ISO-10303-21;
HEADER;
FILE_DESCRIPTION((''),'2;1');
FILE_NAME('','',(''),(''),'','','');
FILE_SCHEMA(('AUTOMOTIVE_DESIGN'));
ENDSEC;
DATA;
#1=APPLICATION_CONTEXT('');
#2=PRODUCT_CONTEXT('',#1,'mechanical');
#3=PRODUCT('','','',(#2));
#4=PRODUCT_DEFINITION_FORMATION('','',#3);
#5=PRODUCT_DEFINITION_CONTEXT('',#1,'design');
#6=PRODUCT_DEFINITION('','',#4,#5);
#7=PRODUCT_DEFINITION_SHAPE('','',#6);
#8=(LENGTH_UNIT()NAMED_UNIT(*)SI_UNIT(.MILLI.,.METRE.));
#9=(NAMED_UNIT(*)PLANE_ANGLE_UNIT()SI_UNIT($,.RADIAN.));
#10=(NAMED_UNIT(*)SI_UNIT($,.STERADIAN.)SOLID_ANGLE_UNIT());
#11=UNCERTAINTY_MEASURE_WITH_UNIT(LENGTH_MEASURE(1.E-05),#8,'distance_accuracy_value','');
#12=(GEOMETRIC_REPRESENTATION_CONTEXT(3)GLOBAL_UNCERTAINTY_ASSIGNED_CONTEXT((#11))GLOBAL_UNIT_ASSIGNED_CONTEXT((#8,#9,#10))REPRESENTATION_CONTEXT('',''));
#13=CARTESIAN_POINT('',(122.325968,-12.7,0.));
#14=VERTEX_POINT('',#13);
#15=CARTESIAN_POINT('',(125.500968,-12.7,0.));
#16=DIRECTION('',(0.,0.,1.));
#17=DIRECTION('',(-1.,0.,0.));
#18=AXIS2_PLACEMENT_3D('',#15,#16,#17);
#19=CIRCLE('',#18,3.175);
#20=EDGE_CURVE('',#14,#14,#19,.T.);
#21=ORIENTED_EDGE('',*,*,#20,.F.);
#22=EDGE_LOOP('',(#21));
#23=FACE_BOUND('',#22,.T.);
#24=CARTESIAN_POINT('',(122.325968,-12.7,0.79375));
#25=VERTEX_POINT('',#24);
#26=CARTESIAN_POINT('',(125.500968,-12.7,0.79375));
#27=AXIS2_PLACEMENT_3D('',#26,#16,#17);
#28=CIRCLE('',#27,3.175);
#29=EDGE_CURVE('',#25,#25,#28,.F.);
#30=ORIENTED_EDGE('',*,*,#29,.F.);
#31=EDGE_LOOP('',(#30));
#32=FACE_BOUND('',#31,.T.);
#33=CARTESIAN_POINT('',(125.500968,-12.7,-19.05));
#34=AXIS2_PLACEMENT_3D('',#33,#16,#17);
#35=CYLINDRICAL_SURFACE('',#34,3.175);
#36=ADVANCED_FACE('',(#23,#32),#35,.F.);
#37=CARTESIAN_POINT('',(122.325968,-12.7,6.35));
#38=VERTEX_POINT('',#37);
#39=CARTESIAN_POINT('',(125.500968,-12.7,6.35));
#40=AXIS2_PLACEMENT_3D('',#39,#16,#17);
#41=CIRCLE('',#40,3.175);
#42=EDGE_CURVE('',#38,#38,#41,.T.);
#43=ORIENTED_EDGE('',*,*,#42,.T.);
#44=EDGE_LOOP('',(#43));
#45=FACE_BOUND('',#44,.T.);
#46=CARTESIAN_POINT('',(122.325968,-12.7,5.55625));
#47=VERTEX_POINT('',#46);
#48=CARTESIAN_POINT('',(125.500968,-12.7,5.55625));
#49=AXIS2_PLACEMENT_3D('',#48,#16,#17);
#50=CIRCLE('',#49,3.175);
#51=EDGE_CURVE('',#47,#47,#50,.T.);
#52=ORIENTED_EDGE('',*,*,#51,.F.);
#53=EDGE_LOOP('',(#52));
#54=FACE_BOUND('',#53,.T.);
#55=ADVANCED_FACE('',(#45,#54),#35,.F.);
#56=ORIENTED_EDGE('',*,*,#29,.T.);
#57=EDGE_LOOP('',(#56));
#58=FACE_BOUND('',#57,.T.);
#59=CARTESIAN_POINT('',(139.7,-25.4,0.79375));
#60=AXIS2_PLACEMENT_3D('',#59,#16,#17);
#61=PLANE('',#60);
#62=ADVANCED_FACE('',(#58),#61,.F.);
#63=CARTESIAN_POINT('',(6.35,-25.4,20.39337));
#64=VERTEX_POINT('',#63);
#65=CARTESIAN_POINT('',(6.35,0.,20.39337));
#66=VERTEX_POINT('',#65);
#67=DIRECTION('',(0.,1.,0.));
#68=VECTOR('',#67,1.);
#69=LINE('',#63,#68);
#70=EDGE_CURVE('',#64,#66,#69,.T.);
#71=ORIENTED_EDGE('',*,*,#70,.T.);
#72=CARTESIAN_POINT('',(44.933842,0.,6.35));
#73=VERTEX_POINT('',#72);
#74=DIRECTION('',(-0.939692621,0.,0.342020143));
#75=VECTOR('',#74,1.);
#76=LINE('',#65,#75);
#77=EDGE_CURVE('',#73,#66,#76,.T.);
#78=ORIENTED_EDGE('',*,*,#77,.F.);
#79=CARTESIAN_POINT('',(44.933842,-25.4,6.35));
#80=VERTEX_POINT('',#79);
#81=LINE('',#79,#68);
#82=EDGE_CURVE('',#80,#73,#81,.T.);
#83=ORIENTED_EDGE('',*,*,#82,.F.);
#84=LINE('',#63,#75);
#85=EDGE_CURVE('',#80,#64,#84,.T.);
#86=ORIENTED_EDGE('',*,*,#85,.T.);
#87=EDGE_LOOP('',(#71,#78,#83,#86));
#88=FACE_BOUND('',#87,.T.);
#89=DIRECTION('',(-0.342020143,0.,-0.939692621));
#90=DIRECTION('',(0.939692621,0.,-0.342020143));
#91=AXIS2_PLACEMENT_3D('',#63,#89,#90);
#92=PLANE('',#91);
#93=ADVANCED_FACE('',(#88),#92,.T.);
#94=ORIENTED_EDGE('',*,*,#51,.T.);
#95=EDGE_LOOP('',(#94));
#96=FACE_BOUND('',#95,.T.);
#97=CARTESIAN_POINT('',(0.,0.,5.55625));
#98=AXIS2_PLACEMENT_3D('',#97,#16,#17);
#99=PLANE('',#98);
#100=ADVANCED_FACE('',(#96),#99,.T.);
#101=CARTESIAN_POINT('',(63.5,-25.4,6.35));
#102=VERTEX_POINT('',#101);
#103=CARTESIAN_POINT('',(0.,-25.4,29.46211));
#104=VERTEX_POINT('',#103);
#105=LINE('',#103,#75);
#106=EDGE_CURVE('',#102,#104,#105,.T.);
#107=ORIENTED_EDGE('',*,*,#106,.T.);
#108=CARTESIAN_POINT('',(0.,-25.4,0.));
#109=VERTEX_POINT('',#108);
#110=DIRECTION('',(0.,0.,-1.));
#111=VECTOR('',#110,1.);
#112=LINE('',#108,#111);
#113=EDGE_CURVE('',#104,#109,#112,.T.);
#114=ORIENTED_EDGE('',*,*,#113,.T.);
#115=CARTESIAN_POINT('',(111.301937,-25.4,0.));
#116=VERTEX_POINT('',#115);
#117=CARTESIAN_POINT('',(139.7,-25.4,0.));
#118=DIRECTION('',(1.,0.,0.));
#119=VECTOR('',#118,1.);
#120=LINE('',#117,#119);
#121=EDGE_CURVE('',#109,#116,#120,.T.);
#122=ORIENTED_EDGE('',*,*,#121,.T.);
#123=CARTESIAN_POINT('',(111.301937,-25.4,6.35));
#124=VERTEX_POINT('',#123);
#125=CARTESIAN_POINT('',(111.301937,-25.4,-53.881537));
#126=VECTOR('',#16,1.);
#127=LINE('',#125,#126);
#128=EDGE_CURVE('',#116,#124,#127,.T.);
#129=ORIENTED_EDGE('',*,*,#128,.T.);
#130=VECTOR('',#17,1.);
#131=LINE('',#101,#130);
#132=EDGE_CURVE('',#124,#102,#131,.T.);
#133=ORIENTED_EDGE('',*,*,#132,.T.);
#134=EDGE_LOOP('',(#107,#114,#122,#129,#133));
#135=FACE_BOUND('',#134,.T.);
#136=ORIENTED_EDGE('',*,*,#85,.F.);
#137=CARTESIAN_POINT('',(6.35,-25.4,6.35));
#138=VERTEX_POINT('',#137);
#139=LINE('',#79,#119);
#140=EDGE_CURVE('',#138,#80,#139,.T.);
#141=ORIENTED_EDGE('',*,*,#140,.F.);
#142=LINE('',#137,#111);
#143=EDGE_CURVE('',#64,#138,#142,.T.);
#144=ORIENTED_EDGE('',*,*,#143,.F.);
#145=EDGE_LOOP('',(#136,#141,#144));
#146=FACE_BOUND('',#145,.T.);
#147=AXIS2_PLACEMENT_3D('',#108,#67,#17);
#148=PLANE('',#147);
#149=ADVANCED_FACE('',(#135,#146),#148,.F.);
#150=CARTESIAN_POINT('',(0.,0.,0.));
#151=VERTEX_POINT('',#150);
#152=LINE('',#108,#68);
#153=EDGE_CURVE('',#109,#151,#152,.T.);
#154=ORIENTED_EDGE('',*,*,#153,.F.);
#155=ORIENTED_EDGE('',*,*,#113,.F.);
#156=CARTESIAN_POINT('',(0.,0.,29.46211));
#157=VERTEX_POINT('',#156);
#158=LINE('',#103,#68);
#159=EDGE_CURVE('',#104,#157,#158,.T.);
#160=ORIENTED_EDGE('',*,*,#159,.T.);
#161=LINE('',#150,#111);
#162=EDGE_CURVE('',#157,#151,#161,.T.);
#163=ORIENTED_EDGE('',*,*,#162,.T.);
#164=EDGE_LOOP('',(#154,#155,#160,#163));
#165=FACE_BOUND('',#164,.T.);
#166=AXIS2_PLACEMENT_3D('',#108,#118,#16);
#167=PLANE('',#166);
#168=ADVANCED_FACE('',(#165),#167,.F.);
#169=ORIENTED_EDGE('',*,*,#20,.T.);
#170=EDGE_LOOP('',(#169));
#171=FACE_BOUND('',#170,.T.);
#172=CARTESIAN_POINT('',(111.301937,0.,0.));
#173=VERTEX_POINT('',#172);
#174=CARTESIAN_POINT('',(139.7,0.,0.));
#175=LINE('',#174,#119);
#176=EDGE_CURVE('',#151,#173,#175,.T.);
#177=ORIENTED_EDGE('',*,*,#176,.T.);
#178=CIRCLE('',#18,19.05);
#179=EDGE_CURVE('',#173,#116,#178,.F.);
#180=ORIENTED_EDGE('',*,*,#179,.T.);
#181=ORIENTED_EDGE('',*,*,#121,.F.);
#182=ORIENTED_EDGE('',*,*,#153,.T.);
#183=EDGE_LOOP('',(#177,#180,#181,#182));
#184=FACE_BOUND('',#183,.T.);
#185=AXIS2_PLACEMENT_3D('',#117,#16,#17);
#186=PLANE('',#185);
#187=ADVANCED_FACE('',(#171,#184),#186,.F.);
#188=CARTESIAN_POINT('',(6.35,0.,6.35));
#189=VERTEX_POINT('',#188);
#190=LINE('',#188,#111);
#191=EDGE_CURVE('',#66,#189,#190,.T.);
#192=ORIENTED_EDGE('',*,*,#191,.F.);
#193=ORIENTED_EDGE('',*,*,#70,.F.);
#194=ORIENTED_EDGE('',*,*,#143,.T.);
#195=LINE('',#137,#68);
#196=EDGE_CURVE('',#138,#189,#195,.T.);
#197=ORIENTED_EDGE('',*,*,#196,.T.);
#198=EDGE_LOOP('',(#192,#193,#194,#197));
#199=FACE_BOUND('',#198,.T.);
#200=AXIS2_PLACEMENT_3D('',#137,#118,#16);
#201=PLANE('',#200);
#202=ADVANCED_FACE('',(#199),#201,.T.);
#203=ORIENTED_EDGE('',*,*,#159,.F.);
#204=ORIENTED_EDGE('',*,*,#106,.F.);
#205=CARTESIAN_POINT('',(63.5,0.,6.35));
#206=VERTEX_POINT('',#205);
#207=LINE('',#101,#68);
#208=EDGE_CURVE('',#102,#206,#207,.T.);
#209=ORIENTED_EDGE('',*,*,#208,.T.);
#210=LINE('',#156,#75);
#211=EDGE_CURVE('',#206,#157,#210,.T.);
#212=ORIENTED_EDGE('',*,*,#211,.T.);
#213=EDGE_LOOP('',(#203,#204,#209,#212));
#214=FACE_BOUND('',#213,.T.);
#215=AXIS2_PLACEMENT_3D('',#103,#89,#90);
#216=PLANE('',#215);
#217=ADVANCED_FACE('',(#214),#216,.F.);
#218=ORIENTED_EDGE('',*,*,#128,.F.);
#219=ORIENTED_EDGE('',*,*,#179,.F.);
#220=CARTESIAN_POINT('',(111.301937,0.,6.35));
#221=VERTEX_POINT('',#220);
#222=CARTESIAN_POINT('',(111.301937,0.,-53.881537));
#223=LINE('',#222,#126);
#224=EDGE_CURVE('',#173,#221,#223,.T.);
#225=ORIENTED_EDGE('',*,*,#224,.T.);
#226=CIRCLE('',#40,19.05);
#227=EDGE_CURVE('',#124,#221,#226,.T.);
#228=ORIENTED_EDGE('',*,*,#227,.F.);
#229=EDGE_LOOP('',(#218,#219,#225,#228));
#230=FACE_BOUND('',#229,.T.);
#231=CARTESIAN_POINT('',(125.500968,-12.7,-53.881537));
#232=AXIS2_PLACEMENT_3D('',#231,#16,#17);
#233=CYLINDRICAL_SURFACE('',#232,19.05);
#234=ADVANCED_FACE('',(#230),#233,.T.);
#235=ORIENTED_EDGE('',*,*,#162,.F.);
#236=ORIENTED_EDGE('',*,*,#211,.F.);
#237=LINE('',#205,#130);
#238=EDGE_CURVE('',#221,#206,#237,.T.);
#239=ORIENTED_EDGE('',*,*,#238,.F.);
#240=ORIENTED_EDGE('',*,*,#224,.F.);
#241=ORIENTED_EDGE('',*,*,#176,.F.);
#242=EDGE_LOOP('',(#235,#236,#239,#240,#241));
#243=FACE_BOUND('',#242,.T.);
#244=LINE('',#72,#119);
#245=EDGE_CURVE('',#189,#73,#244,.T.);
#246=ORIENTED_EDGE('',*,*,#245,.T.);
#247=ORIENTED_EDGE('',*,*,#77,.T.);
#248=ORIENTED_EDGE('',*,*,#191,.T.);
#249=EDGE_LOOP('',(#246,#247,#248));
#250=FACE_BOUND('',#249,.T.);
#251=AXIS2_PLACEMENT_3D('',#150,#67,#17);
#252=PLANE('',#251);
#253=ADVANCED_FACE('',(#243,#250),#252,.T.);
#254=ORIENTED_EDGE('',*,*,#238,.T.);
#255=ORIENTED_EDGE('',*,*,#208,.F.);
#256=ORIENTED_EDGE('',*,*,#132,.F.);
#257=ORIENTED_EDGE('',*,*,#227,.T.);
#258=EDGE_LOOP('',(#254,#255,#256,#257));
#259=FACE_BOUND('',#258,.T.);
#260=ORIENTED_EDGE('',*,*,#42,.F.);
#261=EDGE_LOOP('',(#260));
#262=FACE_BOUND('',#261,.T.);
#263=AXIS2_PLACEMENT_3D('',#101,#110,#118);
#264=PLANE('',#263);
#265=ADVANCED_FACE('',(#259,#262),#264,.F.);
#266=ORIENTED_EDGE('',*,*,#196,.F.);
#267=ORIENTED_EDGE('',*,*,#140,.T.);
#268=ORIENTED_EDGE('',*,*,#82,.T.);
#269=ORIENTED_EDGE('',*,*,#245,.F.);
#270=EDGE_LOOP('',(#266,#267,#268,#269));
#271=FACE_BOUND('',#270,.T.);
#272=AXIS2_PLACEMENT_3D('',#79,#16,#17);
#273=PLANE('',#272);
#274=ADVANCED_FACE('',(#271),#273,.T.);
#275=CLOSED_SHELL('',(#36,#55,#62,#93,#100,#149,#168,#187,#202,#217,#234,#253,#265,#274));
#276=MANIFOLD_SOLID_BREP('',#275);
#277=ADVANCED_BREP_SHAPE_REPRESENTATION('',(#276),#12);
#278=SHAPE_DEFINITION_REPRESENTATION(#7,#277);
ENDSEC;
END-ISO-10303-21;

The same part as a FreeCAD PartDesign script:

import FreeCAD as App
import Part
import Sketcher
Q = App.Units.Quantity


def add_polygon(sketch, points):
    """Adds a closed chain of lines whose ends are joined by coincident constraints."""
    first, n = sketch.GeometryCount, len(points)
    for a, b in zip(points, points[1:] + points[:1]):
        sketch.addGeometry(Part.LineSegment(App.Vector(*a, 0), App.Vector(*b, 0)), False)
    for i in range(n):
        sketch.addConstraint(Sketcher.Constraint("Coincident", first + i, 2, first + (i + 1) % n, 1))

doc = App.newDocument("Part")
body = doc.addObject("PartDesign::Body", "Body")

# Sketch on XY plane
sketch1 = doc.addObject("Sketcher::SketchObject", "Sketch")
body.addObject(sketch1)
sketch1.AttachmentSupport = (doc.XY_Plane, [""])
sketch1.MapMode = "FlatFace"
add_polygon(sketch1, [(0, 29.46211), (0, 0), (139.7, 0), (139.7, 6.35), (63.5, 6.35)])  # lines 0-4
add_polygon(sketch1, [(44.933842, 6.35), (6.35, 6.35), (6.35, 20.39337)])  # lines 5-7
sketch1.addConstraint(Sketcher.Constraint("Vertical", 0))
sketch1.addConstraint(Sketcher.Constraint("Horizontal", 1))
sketch1.addConstraint(Sketcher.Constraint("Vertical", 2))
sketch1.addConstraint(Sketcher.Constraint("Horizontal", 3))
sketch1.addConstraint(Sketcher.Constraint("Horizontal", 5))
sketch1.addConstraint(Sketcher.Constraint("Vertical", 6))
sketch1.addConstraint(Sketcher.Constraint("Coincident", 0, 2, -1, 1))
sketch1.addConstraint(Sketcher.Constraint("Parallel", 4, 7))
sketch1.addConstraint(Sketcher.Constraint("Horizontal", 3, 2, 5, 2))
sketch1.addConstraint(Sketcher.Constraint("DistanceX", 3, 2, 3, 1, Q("3 in")))
sketch1.addConstraint(Sketcher.Constraint("DistanceX", 1, 1, 1, 2, Q("5.5 in")))
sketch1.addConstraint(Sketcher.Constraint("Angle", 4, Q("160 deg")))
sketch1.addConstraint(Sketcher.Constraint("DistanceY", 2, 1, 2, 2, Q("0.25 in")))
sketch1.addConstraint(Sketcher.Constraint("DistanceX", -1, 1, 5, 2, Q("0.25 in")))
sketch1.addConstraint(Sketcher.Constraint("DistanceY", 6, 1, 6, 2, Q("14.04337 mm")))
pad1 = doc.addObject("PartDesign::Pad", "Pad")
body.addObject(pad1)
pad1.Profile = sketch1
pad1.Length = Q("1 in")

# Sketch on XZ plane
sketch2 = doc.addObject("Sketcher::SketchObject", "Sketch001")
body.addObject(sketch2)
sketch2.AttachmentSupport = (doc.XZ_Plane, [""])
sketch2.MapMode = "FlatFace"
sketch2.AttachmentOffset = App.Placement(App.Vector(0, 0, -0.25 * 25.4), App.Rotation())
sketch2.addGeometry(Part.Circle(App.Vector(125.500968, 12.7, 0), App.Vector(0, 0, 1), 19.05), False)
sketch2.addGeometry(Part.Circle(App.Vector(125.500968, 12.7, 0), App.Vector(0, 0, 1), 3.175), False)
sketch2.addConstraint(Sketcher.Constraint("Coincident", 1, 3, 0, 3))
sketch2.addConstraint(Sketcher.Constraint("Diameter", 0, Q("1.5 in")))
sketch2.addConstraint(Sketcher.Constraint("Diameter", 1, Q("0.25 in")))
sketch2.addConstraint(Sketcher.Constraint("DistanceY", -1, 1, 0, 3, Q("0.5 in")))
sketch2.addConstraint(Sketcher.Constraint("DistanceX", -1, 1, 0, 3, Q("125.500968 mm")))
pad2 = doc.addObject("PartDesign::Pad", "Pad001")
body.addObject(pad2)
pad2.Profile = sketch2
pad2.Length = Q("0.25 in")

# Sketch on XZ plane
sketch3 = doc.addObject("Sketcher::SketchObject", "Sketch002")
body.addObject(sketch3)
sketch3.AttachmentSupport = (doc.XZ_Plane, [""])
sketch3.MapMode = "FlatFace"
sketch3.AttachmentOffset = App.Placement(App.Vector(0, 0, -0.25 * 25.4), App.Rotation())
sketch3.addGeometry(Part.Circle(App.Vector(125.500968, 12.7, 0), App.Vector(0, 0, 1), 3.175), False)
sketch3.addConstraint(Sketcher.Constraint("Diameter", 0, Q("0.25 in")))
sketch3.addConstraint(Sketcher.Constraint("DistanceY", -1, 1, 0, 3, Q("0.5 in")))
sketch3.addConstraint(Sketcher.Constraint("DistanceX", -1, 1, 0, 3, Q("125.500968 mm")))
pocket1 = doc.addObject("PartDesign::Pocket", "Pocket")
body.addObject(pocket1)
pocket1.Profile = sketch3
pocket1.Length = Q("1 in")
pocket1.Reversed = True

# Sketch on XZ plane
sketch4 = doc.addObject("Sketcher::SketchObject", "Sketch003")
body.addObject(sketch4)
sketch4.AttachmentSupport = (doc.XZ_Plane, [""])
sketch4.MapMode = "FlatFace"
sketch4.AttachmentOffset = App.Placement(App.Vector(0, 0, -0.21875 * 25.4), App.Rotation())
sketch4.addGeometry(Part.Circle(App.Vector(125.500968, 12.7, 0), App.Vector(0, 0, 1), 3.175), False)
sketch4.addConstraint(Sketcher.Constraint("Diameter", 0, Q("0.25 in")))
sketch4.addConstraint(Sketcher.Constraint("DistanceY", -1, 1, 0, 3, Q("0.5 in")))
sketch4.addConstraint(Sketcher.Constraint("DistanceX", -1, 1, 0, 3, Q("125.500968 mm")))
pad3 = doc.addObject("PartDesign::Pad", "Pad002")
body.addObject(pad3)
pad3.Profile = sketch4
pad3.Length = Q("0.1875 in")
body2 = doc.addObject("PartDesign::Body", "Body001")
doc.recompute()

body.Placement = App.Placement(App.Vector(0, 0, 0), App.Rotation(App.Vector(1, 0, 0), 90))
boolean = doc.addObject("PartDesign::Boolean", "Boolean")
body2.addObject(boolean)
boolean.Type = "Fuse"
boolean.addObjects([body])

doc.recompute()
